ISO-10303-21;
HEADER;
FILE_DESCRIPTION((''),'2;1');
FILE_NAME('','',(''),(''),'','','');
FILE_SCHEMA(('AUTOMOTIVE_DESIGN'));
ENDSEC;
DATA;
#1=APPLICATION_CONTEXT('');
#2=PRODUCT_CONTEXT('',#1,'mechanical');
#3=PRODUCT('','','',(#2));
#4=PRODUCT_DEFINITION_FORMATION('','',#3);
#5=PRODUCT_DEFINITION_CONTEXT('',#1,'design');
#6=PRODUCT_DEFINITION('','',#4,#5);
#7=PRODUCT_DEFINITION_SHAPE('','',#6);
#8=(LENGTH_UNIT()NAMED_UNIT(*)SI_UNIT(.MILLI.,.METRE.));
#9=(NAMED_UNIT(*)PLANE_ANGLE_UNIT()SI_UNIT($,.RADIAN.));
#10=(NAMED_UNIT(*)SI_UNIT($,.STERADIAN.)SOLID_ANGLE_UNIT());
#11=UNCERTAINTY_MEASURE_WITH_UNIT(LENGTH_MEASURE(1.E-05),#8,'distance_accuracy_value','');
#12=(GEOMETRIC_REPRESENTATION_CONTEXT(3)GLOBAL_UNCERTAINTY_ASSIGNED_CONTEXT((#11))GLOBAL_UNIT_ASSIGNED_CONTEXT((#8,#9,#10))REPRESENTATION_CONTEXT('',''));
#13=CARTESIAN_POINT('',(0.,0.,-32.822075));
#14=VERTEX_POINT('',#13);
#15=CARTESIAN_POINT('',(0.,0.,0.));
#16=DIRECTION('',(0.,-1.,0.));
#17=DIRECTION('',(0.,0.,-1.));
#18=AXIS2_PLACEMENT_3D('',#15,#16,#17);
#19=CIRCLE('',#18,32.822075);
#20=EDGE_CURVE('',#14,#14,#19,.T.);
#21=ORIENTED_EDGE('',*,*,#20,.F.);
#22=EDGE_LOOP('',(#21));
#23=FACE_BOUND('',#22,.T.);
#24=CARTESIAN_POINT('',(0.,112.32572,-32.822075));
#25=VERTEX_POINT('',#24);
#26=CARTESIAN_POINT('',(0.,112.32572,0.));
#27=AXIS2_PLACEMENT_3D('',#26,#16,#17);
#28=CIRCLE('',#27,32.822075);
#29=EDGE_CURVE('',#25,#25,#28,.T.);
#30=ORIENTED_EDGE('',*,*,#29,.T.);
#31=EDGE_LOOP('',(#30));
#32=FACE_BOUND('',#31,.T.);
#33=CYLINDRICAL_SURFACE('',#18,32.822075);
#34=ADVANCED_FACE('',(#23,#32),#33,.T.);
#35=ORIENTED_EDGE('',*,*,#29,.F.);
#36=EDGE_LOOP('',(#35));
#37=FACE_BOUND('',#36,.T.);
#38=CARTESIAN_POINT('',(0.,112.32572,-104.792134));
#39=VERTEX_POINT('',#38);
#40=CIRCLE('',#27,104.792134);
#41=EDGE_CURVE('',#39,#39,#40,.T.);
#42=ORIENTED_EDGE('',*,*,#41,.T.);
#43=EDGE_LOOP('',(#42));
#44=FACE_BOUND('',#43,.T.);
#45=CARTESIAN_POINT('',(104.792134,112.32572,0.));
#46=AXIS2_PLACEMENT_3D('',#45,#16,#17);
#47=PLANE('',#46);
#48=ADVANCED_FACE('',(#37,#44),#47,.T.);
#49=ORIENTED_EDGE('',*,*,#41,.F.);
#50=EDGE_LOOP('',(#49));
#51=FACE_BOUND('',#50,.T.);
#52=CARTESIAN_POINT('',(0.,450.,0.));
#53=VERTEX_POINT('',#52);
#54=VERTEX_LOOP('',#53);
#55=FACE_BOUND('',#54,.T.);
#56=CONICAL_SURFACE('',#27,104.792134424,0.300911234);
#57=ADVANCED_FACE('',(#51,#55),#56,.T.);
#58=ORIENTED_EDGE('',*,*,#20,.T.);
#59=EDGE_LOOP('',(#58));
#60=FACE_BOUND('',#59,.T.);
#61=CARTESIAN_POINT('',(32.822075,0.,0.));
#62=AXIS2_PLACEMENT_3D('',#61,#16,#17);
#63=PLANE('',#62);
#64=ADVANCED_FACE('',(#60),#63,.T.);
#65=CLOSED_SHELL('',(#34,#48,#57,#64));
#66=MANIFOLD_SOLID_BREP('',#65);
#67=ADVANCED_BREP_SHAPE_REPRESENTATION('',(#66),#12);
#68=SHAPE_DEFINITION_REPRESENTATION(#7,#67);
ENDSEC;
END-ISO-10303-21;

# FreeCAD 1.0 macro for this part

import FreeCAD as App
import Part
import Sketcher


def add_polygon(sketch, points):
    """Adds a closed chain of lines whose ends are joined by coincident constraints."""
    first, n = sketch.GeometryCount, len(points)
    for a, b in zip(points, points[1:] + points[:1]):
        sketch.addGeometry(Part.LineSegment(App.Vector(*a, 0), App.Vector(*b, 0)), False)
    for i in range(n):
        sketch.addConstraint(Sketcher.Constraint("Coincident", first + i, 2, first + (i + 1) % n, 1))

doc = App.newDocument("Part")
body = doc.addObject("PartDesign::Body", "Body")

sketch1 = body.newObject("Sketcher::SketchObject", "Sketch")
sketch1.AttachmentSupport = (doc.getObject("XY_Plane"), [""])
sketch1.MapMode = "FlatFace"
add_polygon(sketch1, [(0, 450), (0, 0), (33, 0), (33, 112), (105, 112)])
sketch1.addConstraint([
    Sketcher.Constraint("Vertical", 0),
    Sketcher.Constraint("Horizontal", 1),
    Sketcher.Constraint("Vertical", 2),
    Sketcher.Constraint("Horizontal", 3),
    Sketcher.Constraint("Coincident", 0, 2, -1, 1),
    Sketcher.Constraint("DistanceY", 0, 2, 0, 1, 450.0),
    Sketcher.Constraint("Distance", 4, 353.560901),
    Sketcher.Constraint("DistanceX", 3, 1, 3, 2, 71.97006),
    Sketcher.Constraint("DistanceY", 2, 1, 2, 2, 112.32572),
])
revolution = body.newObject("PartDesign::Revolution", "Revolution")
revolution.Profile = sketch1
revolution.ReferenceAxis = (sketch1, ["V_Axis"])
revolution.Angle = 360

doc.recompute()
